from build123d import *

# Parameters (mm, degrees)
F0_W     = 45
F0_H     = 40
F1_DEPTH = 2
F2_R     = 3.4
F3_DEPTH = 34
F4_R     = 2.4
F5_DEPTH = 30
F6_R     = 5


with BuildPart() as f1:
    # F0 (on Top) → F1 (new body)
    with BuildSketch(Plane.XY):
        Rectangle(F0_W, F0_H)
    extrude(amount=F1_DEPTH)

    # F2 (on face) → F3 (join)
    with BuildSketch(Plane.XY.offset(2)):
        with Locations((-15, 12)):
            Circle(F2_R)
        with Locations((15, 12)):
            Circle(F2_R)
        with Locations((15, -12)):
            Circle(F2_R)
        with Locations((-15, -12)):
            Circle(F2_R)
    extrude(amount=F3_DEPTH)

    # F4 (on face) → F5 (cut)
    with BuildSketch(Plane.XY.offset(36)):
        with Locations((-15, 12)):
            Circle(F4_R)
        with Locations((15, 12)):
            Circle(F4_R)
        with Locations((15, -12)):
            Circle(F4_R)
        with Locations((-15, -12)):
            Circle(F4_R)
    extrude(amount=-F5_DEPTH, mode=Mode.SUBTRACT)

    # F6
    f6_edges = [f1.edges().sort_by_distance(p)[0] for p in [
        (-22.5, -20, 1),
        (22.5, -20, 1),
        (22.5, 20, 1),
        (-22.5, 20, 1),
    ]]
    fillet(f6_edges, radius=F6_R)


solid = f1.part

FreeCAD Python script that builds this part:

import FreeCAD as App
import Part
import Sketcher
Q = App.Units.Quantity


def edges_at(feature, points):
    """Names of the edges that pass closest to the given points."""
    edges = feature.Shape.Edges
    near = lambda p: min(range(len(edges)), key=lambda i: edges[i].distToShape(Part.Vertex(*p))[0])
    return sorted({f"Edge{near(p) + 1}" for p in points})

doc = App.newDocument("Part")
body = doc.addObject("PartDesign::Body", "Body")

# Sketch on XY plane
sketch1 = body.newObject("Sketcher::SketchObject", "Sketch")
sketch1.AttachmentSupport = (doc.getObject("XY_Plane"), [""])
sketch1.MapMode = "FlatFace"
sketch1.addGeometry([
    Part.LineSegment(App.Vector(-22, 20, 0), App.Vector(-22, -20, 0)),
    Part.LineSegment(App.Vector(-22, -20, 0), App.Vector(22, -20, 0)),
    Part.LineSegment(App.Vector(22, -20, 0), App.Vector(22, 20, 0)),
    Part.LineSegment(App.Vector(22, 20, 0), App.Vector(-22, 20, 0)),
], False)
sketch1.addConstraint([
    Sketcher.Constraint("Coincident", 0, 2, 1, 1),
    Sketcher.Constraint("Coincident", 1, 2, 2, 1),
    Sketcher.Constraint("Coincident", 2, 2, 3, 1),
    Sketcher.Constraint("Coincident", 3, 2, 0, 1),
    Sketcher.Constraint("Vertical", 0),
    Sketcher.Constraint("Horizontal", 1),
    Sketcher.Constraint("Vertical", 2),
    Sketcher.Constraint("Horizontal", 3),
    Sketcher.Constraint("Symmetric", 0, 2, 2, 2, -1, 1),
    Sketcher.Constraint("DistanceX", 1, 1, 1, 2, Q("45 mm")),
    Sketcher.Constraint("DistanceY", 0, 2, 0, 1, Q("40 mm")),
])
pad1 = body.newObject("PartDesign::Pad", "Pad")
pad1.Profile = sketch1
pad1.Length = 2

# Sketch on XY plane
sketch2 = body.newObject("Sketcher::SketchObject", "Sketch001")
sketch2.AttachmentSupport = (doc.getObject("XY_Plane"), [""])
sketch2.MapMode = "FlatFace"
sketch2.AttachmentOffset = App.Placement(App.Vector(0, 0, 2), App.Rotation())
sketch2.addGeometry([
    Part.Circle(App.Vector(-15, 12, 0), App.Vector(0, 0, 1), 3.4),
    Part.Circle(App.Vector(15, 12, 0), App.Vector(0, 0, 1), 3.4),
    Part.Circle(App.Vector(15, -12, 0), App.Vector(0, 0, 1), 3.4),
    Part.Circle(App.Vector(-15, -12, 0), App.Vector(0, 0, 1), 3.4),
], False)
sketch2.addConstraint([
    Sketcher.Constraint("Equal", 0, 1),
    Sketcher.Constraint("Equal", 1, 2),
    Sketcher.Constraint("Equal", 2, 3),
    Sketcher.Constraint("Symmetric", 0, 3, 2, 3, -1, 1),
    Sketcher.Constraint("Symmetric", 1, 3, 3, 3, -1, 1),
    Sketcher.Constraint("Symmetric", 0, 3, 1, 3, -2),
    Sketcher.Constraint("Diameter", 0, Q("6.8 mm")),
    Sketcher.Constraint("DistanceX", 0, 3, -1, 1, Q("15 mm")),
    Sketcher.Constraint("DistanceY", -1, 1, 0, 3, Q("12 mm")),
])
pad2 = body.newObject("PartDesign::Pad", "Pad001")
pad2.Profile = sketch2
pad2.Length = 34

# Sketch on XY plane
sketch3 = body.newObject("Sketcher::SketchObject", "Sketch002")
sketch3.AttachmentSupport = (doc.getObject("XY_Plane"), [""])
sketch3.MapMode = "FlatFace"
sketch3.AttachmentOffset = App.Placement(App.Vector(0, 0, 36), App.Rotation())
sketch3.addGeometry([
    Part.Circle(App.Vector(-15, 12, 0), App.Vector(0, 0, 1), 2.4),
    Part.Circle(App.Vector(15, 12, 0), App.Vector(0, 0, 1), 2.4),
    Part.Circle(App.Vector(15, -12, 0), App.Vector(0, 0, 1), 2.4),
    Part.Circle(App.Vector(-15, -12, 0), App.Vector(0, 0, 1), 2.4),
], False)
sketch3.addConstraint([
    Sketcher.Constraint("Equal", 0, 1),
    Sketcher.Constraint("Equal", 1, 2),
    Sketcher.Constraint("Equal", 2, 3),
    Sketcher.Constraint("Symmetric", 0, 3, 2, 3, -1, 1),
    Sketcher.Constraint("Symmetric", 1, 3, 3, 3, -1, 1),
    Sketcher.Constraint("Symmetric", 0, 3, 1, 3, -2),
    Sketcher.Constraint("Diameter", 0, Q("4.8 mm")),
    Sketcher.Constraint("DistanceX", 0, 3, -1, 1, Q("15 mm")),
    Sketcher.Constraint("DistanceY", -1, 1, 0, 3, Q("12 mm")),
])
pocket1 = body.newObject("PartDesign::Pocket", "Pocket")
pocket1.Profile = sketch3
pocket1.Length = 30
doc.recompute()

fillet = body.newObject("PartDesign::Fillet", "Fillet")
fillet.Base = (pocket1, edges_at(pocket1, [
    (-22.5, -20, 1),
    (22.5, -20, 1),
    (22.5, 20, 1),
    (-22.5, 20, 1),
]))
fillet.Radius = 5

doc.recompute()
